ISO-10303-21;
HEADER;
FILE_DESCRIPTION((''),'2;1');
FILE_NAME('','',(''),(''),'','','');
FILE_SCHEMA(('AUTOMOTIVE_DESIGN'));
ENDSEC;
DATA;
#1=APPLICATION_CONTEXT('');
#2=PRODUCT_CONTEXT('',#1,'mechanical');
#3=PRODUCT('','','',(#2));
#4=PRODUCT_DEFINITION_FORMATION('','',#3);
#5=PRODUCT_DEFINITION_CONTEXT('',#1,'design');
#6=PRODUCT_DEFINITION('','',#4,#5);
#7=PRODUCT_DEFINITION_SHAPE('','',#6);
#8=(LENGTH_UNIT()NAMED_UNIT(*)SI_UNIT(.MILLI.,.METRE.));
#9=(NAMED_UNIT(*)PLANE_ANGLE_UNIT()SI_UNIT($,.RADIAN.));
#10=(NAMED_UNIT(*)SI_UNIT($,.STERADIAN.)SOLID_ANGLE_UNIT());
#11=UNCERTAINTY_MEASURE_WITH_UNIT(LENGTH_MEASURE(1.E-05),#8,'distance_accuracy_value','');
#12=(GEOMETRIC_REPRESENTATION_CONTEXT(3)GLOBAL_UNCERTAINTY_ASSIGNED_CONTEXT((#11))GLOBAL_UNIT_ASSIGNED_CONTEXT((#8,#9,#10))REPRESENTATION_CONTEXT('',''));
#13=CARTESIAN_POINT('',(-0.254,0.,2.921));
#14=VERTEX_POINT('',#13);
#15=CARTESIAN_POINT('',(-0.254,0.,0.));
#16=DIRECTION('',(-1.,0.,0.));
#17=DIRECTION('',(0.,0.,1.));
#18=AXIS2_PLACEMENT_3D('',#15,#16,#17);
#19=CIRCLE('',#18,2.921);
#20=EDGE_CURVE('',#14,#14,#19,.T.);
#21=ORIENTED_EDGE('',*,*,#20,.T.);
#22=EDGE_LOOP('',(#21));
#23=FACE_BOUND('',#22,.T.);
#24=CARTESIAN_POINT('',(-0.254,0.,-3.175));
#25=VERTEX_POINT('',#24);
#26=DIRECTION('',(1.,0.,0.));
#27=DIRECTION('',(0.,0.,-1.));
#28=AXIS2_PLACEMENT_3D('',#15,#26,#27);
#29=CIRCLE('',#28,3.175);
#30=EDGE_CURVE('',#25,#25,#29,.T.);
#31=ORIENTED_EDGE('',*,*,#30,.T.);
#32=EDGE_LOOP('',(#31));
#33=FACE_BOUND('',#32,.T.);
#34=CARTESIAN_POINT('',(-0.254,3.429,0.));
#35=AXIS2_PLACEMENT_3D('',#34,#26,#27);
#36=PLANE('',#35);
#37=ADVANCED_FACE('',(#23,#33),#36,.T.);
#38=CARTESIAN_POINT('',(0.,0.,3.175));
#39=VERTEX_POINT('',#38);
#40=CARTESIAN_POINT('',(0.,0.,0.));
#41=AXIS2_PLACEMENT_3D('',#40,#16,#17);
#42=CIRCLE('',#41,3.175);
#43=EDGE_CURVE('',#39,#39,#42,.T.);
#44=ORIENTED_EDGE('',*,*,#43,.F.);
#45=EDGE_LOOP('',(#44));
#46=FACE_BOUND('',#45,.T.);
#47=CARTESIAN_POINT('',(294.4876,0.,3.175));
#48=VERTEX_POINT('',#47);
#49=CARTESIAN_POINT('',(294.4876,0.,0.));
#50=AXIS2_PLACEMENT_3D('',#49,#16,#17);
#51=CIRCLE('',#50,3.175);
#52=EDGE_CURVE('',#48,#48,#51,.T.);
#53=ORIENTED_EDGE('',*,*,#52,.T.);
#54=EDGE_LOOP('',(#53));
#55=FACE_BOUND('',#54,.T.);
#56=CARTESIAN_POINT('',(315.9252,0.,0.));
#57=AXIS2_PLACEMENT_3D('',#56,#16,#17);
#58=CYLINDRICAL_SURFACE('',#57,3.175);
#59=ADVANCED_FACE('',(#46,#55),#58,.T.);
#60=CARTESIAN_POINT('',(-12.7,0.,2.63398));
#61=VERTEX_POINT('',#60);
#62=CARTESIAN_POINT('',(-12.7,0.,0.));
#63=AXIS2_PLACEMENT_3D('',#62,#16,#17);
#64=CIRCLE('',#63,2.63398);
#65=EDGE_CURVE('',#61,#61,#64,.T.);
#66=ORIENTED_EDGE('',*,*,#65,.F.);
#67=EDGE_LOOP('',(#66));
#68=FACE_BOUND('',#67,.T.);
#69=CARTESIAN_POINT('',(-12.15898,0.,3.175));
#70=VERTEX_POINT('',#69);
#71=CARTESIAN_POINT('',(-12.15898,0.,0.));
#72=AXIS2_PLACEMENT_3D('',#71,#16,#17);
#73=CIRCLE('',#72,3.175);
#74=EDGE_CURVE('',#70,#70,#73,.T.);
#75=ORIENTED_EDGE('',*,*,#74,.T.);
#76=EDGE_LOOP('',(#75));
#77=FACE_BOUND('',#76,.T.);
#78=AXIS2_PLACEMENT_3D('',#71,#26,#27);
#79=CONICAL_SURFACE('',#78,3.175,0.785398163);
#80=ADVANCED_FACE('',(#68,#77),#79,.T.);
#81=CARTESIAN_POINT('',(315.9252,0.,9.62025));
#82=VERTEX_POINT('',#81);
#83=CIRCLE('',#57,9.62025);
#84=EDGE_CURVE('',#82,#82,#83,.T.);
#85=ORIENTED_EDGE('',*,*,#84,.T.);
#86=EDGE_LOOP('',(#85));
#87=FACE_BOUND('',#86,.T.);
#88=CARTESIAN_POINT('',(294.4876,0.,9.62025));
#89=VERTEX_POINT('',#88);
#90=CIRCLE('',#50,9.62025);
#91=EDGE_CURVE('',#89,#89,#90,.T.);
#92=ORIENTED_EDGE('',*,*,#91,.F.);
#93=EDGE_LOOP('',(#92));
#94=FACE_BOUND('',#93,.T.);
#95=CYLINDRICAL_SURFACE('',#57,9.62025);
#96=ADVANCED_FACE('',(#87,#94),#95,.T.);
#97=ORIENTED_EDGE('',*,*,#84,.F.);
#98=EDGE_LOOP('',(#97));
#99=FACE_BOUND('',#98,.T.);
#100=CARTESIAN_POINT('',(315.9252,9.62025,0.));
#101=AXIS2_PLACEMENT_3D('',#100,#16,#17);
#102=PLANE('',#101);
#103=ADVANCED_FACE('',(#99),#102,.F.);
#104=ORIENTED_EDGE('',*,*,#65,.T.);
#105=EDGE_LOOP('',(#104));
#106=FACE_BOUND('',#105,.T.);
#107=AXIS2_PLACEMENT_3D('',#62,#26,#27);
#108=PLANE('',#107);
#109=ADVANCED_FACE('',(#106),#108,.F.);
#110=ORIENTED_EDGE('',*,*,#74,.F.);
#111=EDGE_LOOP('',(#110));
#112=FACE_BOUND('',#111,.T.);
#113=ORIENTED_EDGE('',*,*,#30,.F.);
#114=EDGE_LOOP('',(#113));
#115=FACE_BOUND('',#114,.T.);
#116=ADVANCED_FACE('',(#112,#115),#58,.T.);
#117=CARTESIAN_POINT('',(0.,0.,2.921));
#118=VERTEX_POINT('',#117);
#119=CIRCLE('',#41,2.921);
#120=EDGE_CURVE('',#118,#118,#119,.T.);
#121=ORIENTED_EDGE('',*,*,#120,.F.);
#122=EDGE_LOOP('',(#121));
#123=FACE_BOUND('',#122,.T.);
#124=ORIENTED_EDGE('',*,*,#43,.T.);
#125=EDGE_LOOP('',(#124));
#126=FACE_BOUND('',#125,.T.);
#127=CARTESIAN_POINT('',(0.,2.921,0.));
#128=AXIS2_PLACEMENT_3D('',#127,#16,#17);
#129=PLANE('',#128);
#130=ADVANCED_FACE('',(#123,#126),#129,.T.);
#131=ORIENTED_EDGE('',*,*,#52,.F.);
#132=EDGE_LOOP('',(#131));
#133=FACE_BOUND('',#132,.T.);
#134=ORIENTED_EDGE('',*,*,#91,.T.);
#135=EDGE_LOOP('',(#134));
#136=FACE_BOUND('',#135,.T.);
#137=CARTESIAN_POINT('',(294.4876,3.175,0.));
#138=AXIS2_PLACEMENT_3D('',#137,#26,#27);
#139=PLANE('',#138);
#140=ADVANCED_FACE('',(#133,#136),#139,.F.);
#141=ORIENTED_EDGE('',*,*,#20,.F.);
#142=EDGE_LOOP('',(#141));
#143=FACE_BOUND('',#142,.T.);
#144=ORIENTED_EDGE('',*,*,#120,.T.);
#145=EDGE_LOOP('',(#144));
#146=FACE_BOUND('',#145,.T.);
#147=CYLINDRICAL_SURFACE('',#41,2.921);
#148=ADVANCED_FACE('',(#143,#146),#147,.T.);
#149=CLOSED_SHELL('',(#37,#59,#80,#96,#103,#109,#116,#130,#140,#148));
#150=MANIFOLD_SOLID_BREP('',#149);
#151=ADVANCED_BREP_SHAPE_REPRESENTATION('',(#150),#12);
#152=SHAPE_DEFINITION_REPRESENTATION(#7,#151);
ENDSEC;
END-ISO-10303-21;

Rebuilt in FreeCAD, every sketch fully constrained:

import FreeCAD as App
import Part
import Sketcher
Q = App.Units.Quantity


def add_polygon(sketch, points):
    """Adds a closed chain of lines whose ends are joined by coincident constraints."""
    first, n = sketch.GeometryCount, len(points)
    for a, b in zip(points, points[1:] + points[:1]):
        sketch.addGeometry(Part.LineSegment(App.Vector(*a, 0), App.Vector(*b, 0)), False)
    for i in range(n):
        sketch.addConstraint(Sketcher.Constraint("Coincident", first + i, 2, first + (i + 1) % n, 1))

doc = App.newDocument("Part")
body = doc.addObject("PartDesign::Body", "Body")

# Sketch on XY plane
sketch1 = doc.addObject("Sketcher::SketchObject", "Sketch")
body.addObject(sketch1)
sketch1.AttachmentSupport = (doc.XY_Plane, [""])
sketch1.MapMode = "FlatFace"
add_polygon(sketch1, [(0, 3.175), (0, 0), (315.9252, 0), (315.9252, 9.62025), (294.4876, 9.62025), (294.4876, 3.175)])  # lines 0-5
sketch1.addConstraint([
    Sketcher.Constraint("Vertical", 0),
    Sketcher.Constraint("Horizontal", 1),
    Sketcher.Constraint("Vertical", 2),
    Sketcher.Constraint("Horizontal", 3),
    Sketcher.Constraint("Vertical", 4),
    Sketcher.Constraint("Horizontal", 5),
    Sketcher.Constraint("Coincident", 0, 2, -1, 1),
    Sketcher.Constraint("DistanceX", 1, 1, 1, 2, Q("12.438 in")),
    Sketcher.Constraint("DistanceX", 3, 2, 3, 1, Q("0.844 in")),
    Sketcher.Constraint("DistanceY", 0, 2, 0, 1, Q("0.125 in")),
    Sketcher.Constraint("DistanceY", 2, 1, 2, 2, 9.62025),
])
revolution = doc.addObject("PartDesign::Revolution", "Revolution")
body.addObject(revolution)
revolution.Profile = sketch1
revolution.ReferenceAxis = (sketch1, ["H_Axis"])
revolution.Angle = 360

# Sketch on XY plane
sketch2 = doc.addObject("Sketcher::SketchObject", "Sketch001")
body.addObject(sketch2)
sketch2.AttachmentSupport = (doc.XY_Plane, [""])
sketch2.MapMode = "FlatFace"
add_polygon(sketch2, [(-12.7, 2.63398), (-12.7, 0), (0, 0), (0, 3.175), (-12.15898, 3.175)])  # lines 0-4
sketch2.addConstraint([
    Sketcher.Constraint("Vertical", 0),
    Sketcher.Constraint("Horizontal", 1),
    Sketcher.Constraint("Vertical", 2),
    Sketcher.Constraint("Horizontal", 3),
    Sketcher.Constraint("Coincident", 1, 2, -1, 1),
    Sketcher.Constraint("DistanceX", 1, 1, 1, 2, Q("0.5 in")),
    Sketcher.Constraint("Angle", 4, Q("-135 deg")),
    Sketcher.Constraint("DistanceY", 2, 1, 2, 2, Q("0.125 in")),
    Sketcher.Constraint("DistanceX", 3, 2, 3, 1, Q("0.4787 in")),
])
revolution2 = doc.addObject("PartDesign::Revolution", "Revolution001")
body.addObject(revolution2)
revolution2.Profile = sketch2
revolution2.ReferenceAxis = (sketch2, ["H_Axis"])
revolution2.Angle = 360

# Sketch on XY plane
sketch3 = doc.addObject("Sketcher::SketchObject", "Sketch002")
body.addObject(sketch3)
sketch3.AttachmentSupport = (doc.XY_Plane, [""])
sketch3.MapMode = "FlatFace"
add_polygon(sketch3, [(-0.254, 3.429), (-0.254, 2.921), (0, 2.921), (0, 3.429)])  # lines 0-3
sketch3.addConstraint([
    Sketcher.Constraint("Vertical", 0),
    Sketcher.Constraint("Horizontal", 1),
    Sketcher.Constraint("Vertical", 2),
    Sketcher.Constraint("Horizontal", 3),
    Sketcher.Constraint("PointOnObject", 1, 2, -2),
    Sketcher.Constraint("DistanceX", 1, 1, 1, 2, Q("0.01 in")),
    Sketcher.Constraint("DistanceY", 0, 2, 0, 1, Q("0.02 in")),
    Sketcher.Constraint("DistanceY", -1, 1, 0, 2, Q("0.115 in")),
])
groove = doc.addObject("PartDesign::Groove", "Groove")
body.addObject(groove)
groove.Profile = sketch3
groove.ReferenceAxis = (sketch3, ["H_Axis"])
groove.Angle = 360

doc.recompute()
